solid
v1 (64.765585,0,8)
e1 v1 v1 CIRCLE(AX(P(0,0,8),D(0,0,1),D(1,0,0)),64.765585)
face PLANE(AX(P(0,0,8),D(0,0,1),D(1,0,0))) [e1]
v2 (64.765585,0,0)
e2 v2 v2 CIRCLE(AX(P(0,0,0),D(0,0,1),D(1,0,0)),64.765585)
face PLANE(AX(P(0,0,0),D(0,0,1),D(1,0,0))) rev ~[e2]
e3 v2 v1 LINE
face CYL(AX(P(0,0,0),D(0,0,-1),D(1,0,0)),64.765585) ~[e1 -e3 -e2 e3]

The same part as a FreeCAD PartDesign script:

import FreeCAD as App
import Part
import Sketcher

V = App.Vector

doc = App.newDocument("Part")
body = doc.addObject("PartDesign::Body", "Body")

# Sketch on XY plane
sketch1 = body.newObject("Sketcher::SketchObject", "Sketch")
sketch1.AttachmentSupport = (doc.getObject("XY_Plane"), [""])
sketch1.MapMode = "FlatFace"
sketch1.addGeometry(Part.Circle(V(0, 0, 0), V(0, 0, 1), 65), False)
sketch1.addConstraint(Sketcher.Constraint("Coincident", 0, 3, -1, 1))
sketch1.addConstraint(Sketcher.Constraint("Diameter", 0, 129.53117))
pad1 = body.newObject("PartDesign::Pad", "Pad")
pad1.Profile = sketch1
pad1.Length = 8

# Sketch on XY plane
sketch2 = body.newObject("Sketcher::SketchObject", "Sketch001")
sketch2.AttachmentSupport = (doc.getObject("XY_Plane"), [""])
sketch2.MapMode = "FlatFace"
sketch2.AttachmentOffset = App.Placement(V(0, 0, 8), App.Rotation())
sketch2.addGeometry(Part.Circle(V(0, 0, 0), V(0, 0, 1), 60), False)
sketch2.addConstraint(Sketcher.Constraint("Coincident", 0, 3, -1, 1))
sketch2.addConstraint(Sketcher.Constraint("Diameter", 0, 120.860714))
pad2 = body.newObject("PartDesign::Pad", "Pad001")
pad2.Profile = sketch2
pad2.Length = 4
pad2.Reversed = True

doc.recompute()
